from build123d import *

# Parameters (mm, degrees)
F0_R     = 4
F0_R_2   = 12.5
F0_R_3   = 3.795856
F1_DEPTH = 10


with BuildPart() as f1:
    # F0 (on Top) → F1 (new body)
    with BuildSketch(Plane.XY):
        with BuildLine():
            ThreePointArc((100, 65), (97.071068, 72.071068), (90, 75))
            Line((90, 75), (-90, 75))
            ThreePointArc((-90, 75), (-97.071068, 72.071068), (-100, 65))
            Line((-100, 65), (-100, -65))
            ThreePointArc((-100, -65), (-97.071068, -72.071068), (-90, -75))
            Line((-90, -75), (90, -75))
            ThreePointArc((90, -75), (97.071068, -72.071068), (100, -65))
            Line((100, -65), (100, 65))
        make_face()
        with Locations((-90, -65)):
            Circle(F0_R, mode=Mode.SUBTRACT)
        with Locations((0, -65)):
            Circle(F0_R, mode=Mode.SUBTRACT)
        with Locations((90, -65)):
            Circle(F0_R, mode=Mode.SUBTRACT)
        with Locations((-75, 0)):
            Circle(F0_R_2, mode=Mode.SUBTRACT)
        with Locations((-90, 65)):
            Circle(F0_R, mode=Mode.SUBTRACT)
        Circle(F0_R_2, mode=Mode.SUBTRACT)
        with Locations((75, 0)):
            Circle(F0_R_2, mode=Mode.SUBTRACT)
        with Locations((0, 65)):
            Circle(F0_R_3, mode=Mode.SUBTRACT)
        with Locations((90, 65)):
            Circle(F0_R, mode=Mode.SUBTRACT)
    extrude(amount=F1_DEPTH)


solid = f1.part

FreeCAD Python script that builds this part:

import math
import FreeCAD as App
import Part
import Sketcher
from FreeCAD import Vector

doc = App.newDocument("Part")
params = doc.addObject("Spreadsheet::Sheet", "Params")
for row, (alias, value) in enumerate([
    ("sketch1_diameter", "8 mm"),
    ("sketch1_diameter2", "25 mm"),
    ("sketch1_radius", "9.999999 mm"),
    ("sketch1_width", "180 mm"),
    ("sketch1_height", "130 mm"),
    ("pad1_length", "10 mm"),
], start=1):
    params.set(f"A{row}", alias)
    params.set(f"B{row}", "=" + value)
    params.setAlias(f"B{row}", alias)

body = doc.addObject("PartDesign::Body", "Body")

# Sketch on XY plane
sketch1 = body.newObject("Sketcher::SketchObject", "Sketch")
sketch1.AttachmentSupport = (doc.getObject("XY_Plane"), [""])
sketch1.MapMode = "FlatFace"
sketch1.addGeometry([
    Part.ArcOfCircle(Part.Circle(Vector(90, 65, 0), Vector(0, 0, 1), 10), math.radians(0), math.radians(90)),  # 0
    Part.LineSegment(Vector(90, 75, 0), Vector(-90, 75, 0)),  # 1
    Part.ArcOfCircle(Part.Circle(Vector(-90, 65, 0), Vector(0, 0, 1), 10), math.radians(90), math.radians(180)),  # 2
    Part.LineSegment(Vector(-100, 65, 0), Vector(-100, -65, 0)),  # 3
    Part.ArcOfCircle(Part.Circle(Vector(-90, -65, 0), Vector(0, 0, 1), 10), math.radians(180), math.radians(270)),  # 4
    Part.LineSegment(Vector(-90, -75, 0), Vector(90, -75, 0)),  # 5
    Part.ArcOfCircle(Part.Circle(Vector(90, -65, 0), Vector(0, 0, 1), 10), math.radians(-90), math.radians(0)),  # 6
    Part.LineSegment(Vector(100, -65, 0), Vector(100, 65, 0)),  # 7
    Part.Circle(Vector(-90, -65, 0), Vector(0, 0, 1), 4),  # 8
    Part.Circle(Vector(0, -65, 0), Vector(0, 0, 1), 4),  # 9
    Part.Circle(Vector(90, -65, 0), Vector(0, 0, 1), 4),  # 10
    Part.Circle(Vector(-75, 0, 0), Vector(0, 0, 1), 12.5),  # 11
    Part.Circle(Vector(-90, 65, 0), Vector(0, 0, 1), 4),  # 12
    Part.Circle(Vector(0, 0, 0), Vector(0, 0, 1), 12.5),  # 13
    Part.Circle(Vector(75, 0, 0), Vector(0, 0, 1), 12.5),  # 14
    Part.Circle(Vector(0, 65, 0), Vector(0, 0, 1), 3.8),  # 15
    Part.Circle(Vector(90, 65, 0), Vector(0, 0, 1), 4),  # 16
], False)
sketch1.addConstraint([
    Sketcher.Constraint("Tangent", 0, 2, 1, 1),
    Sketcher.Constraint("Tangent", 1, 2, 2, 1),
    Sketcher.Constraint("Tangent", 2, 2, 3, 1),
    Sketcher.Constraint("Tangent", 3, 2, 4, 1),
    Sketcher.Constraint("Tangent", 4, 2, 5, 1),
    Sketcher.Constraint("Tangent", 5, 2, 6, 1),
    Sketcher.Constraint("Tangent", 6, 2, 7, 1),
    Sketcher.Constraint("Tangent", 7, 2, 0, 1),
    Sketcher.Constraint("Horizontal", 1),
    Sketcher.Constraint("Vertical", 3),
    Sketcher.Constraint("Horizontal", 5),
    Sketcher.Constraint("Vertical", 7),
    Sketcher.Constraint("Coincident", 13, 3, -1, 1),
    Sketcher.Constraint("Coincident", 8, 3, 4, 3),
    Sketcher.Constraint("Coincident", 10, 3, 6, 3),
    Sketcher.Constraint("Coincident", 12, 3, 2, 3),
    Sketcher.Constraint("Coincident", 16, 3, 0, 3),
    Sketcher.Constraint("Equal", 0, 2),
    Sketcher.Constraint("Equal", 2, 4),
    Sketcher.Constraint("Equal", 4, 6),
    Sketcher.Constraint("Equal", 8, 9),
    Sketcher.Constraint("Equal", 9, 10),
    Sketcher.Constraint("Equal", 10, 12),
    Sketcher.Constraint("Equal", 11, 13),
    Sketcher.Constraint("Equal", 13, 14),
    Sketcher.Constraint("Equal", 12, 16),
    Sketcher.Constraint("Symmetric", 0, 3, 4, 3, -1, 1),
    Sketcher.Constraint("Symmetric", 11, 3, 14, 3, -1, 1),
    Sketcher.Constraint("Symmetric", 9, 3, 15, 3, -1, 1),
    Sketcher.Constraint("PointOnObject", 9, 3, -2),
    Sketcher.Constraint("PointOnObject", 11, 3, -1),
    Sketcher.Constraint("Horizontal", 8, 3, 9, 3),
    Sketcher.Constraint("Diameter", 8, 8.0),
    Sketcher.Constraint("Diameter", 11, 25.0),
    Sketcher.Constraint("Radius", 0, 9.999999),
    Sketcher.Constraint("DistanceX", 1, 2, 1, 1, 180.0),
    Sketcher.Constraint("DistanceY", 3, 2, 3, 1, 130.0),
    Sketcher.Constraint("DistanceX", 11, 3, -1, 1, 75.0),
    Sketcher.Constraint("Diameter", 15, 7.591712),
])
sketch1.setExpression("Constraints[32]", "Params.sketch1_diameter")
sketch1.setExpression("Constraints[33]", "Params.sketch1_diameter2")
sketch1.setExpression("Constraints[34]", "Params.sketch1_radius")
sketch1.setExpression("Constraints[35]", "Params.sketch1_width")
sketch1.setExpression("Constraints[36]", "Params.sketch1_height")
pad1 = body.newObject("PartDesign::Pad", "Pad")
pad1.Profile = sketch1
pad1.setExpression("Length", "Params.pad1_length")

doc.recompute()
